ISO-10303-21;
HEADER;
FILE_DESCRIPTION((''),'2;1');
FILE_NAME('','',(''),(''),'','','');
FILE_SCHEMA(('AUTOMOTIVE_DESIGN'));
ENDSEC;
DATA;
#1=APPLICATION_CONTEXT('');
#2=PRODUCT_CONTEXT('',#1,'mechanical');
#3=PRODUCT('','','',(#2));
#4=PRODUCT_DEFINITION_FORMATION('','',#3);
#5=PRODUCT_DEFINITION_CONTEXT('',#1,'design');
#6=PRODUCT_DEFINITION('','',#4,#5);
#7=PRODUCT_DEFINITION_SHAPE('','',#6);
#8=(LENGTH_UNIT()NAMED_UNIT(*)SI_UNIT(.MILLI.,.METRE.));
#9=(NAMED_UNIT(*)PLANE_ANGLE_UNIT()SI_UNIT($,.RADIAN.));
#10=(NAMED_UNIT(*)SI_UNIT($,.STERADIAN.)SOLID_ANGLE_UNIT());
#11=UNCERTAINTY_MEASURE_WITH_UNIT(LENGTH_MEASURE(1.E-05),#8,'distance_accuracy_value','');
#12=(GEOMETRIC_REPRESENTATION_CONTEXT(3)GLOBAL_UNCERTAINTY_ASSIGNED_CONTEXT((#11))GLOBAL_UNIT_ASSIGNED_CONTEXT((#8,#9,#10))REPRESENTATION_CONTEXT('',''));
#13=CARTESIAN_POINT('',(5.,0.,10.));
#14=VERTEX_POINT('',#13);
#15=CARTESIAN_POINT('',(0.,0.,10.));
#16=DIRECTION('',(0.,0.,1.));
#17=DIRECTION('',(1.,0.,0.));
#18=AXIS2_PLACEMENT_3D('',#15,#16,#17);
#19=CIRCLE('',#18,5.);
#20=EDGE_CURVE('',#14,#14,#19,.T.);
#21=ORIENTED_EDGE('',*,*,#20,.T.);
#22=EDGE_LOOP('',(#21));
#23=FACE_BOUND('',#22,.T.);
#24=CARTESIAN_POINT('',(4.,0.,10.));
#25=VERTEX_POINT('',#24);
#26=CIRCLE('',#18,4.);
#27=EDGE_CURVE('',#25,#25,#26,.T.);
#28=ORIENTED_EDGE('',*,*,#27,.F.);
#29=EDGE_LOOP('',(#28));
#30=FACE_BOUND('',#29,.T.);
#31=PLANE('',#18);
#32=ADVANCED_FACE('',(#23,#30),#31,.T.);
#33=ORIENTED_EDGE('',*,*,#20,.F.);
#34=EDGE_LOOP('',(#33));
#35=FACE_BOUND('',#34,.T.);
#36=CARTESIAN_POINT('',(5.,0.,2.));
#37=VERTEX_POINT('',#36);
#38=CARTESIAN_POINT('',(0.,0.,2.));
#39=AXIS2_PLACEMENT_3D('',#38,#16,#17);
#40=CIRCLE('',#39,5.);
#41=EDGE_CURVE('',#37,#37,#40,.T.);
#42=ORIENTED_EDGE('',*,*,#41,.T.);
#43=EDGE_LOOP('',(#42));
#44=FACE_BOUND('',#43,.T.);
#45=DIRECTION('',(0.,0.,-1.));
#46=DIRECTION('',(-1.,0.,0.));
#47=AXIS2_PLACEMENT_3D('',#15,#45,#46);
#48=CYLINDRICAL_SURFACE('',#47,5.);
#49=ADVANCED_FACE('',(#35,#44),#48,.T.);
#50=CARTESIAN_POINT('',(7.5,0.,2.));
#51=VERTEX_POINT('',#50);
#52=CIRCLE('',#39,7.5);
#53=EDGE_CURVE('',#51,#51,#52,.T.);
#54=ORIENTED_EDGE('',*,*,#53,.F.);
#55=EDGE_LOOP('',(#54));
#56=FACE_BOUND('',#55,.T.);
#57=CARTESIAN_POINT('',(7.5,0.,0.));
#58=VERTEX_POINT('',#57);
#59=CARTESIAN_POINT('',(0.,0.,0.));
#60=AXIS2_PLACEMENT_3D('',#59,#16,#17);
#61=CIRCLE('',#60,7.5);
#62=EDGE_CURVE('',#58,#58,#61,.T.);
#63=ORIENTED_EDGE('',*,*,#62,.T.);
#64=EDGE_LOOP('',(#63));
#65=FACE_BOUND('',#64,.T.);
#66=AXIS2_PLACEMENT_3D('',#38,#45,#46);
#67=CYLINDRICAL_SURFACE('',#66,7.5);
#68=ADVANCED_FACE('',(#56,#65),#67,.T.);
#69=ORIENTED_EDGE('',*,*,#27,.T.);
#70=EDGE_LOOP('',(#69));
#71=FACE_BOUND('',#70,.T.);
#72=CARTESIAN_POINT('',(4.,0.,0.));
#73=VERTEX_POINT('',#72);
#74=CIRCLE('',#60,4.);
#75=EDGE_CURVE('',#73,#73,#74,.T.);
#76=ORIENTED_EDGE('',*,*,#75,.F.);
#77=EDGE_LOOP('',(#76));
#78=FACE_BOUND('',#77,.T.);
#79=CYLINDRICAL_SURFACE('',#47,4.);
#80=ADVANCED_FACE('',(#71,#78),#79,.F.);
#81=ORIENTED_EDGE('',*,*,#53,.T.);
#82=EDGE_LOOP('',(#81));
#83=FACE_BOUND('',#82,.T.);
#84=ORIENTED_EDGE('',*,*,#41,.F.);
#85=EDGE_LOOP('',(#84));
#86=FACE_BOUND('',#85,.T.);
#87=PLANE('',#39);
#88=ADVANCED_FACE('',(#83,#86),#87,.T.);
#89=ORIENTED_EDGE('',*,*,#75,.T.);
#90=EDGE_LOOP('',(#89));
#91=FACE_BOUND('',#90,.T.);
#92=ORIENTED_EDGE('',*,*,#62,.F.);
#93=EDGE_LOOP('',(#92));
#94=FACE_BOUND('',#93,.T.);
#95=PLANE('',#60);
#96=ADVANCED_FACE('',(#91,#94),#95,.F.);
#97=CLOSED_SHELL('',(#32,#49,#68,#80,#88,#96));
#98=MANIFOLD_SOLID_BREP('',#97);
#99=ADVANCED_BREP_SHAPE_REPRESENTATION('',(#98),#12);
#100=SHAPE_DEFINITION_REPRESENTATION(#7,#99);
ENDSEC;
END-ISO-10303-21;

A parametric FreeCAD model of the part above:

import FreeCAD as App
import Part
import Sketcher

doc = App.newDocument("Part")
body = doc.addObject("PartDesign::Body", "Body")

sketch1 = body.newObject("Sketcher::SketchObject", "Sketch")
sketch1.AttachmentSupport = (doc.getObject("XY_Plane"), [""])
sketch1.MapMode = "FlatFace"
sketch1.addGeometry(Part.Circle(App.Vector(0, 0, 0), App.Vector(0, 0, 1), 5), False)
sketch1.addGeometry(Part.Circle(App.Vector(0, 0, 0), App.Vector(0, 0, 1), 4), False)
sketch1.addConstraint(Sketcher.Constraint("Coincident", 0, 3, -1, 1))
sketch1.addConstraint(Sketcher.Constraint("Coincident", 1, 3, -1, 1))
sketch1.addConstraint(Sketcher.Constraint("Diameter", 0, 10.0))
sketch1.addConstraint(Sketcher.Constraint("Diameter", 1, 8.0))
pad1 = body.newObject("PartDesign::Pad", "Pad")
pad1.Profile = sketch1
pad1.Length = 10

sketch2 = body.newObject("Sketcher::SketchObject", "Sketch001")
sketch2.AttachmentSupport = (doc.getObject("XY_Plane"), [""])
sketch2.MapMode = "FlatFace"
sketch2.addGeometry(Part.Circle(App.Vector(0, 0, 0), App.Vector(0, 0, 1), 8), False)
sketch2.addGeometry(Part.Circle(App.Vector(0, 0, 0), App.Vector(0, 0, 1), 5), False)
sketch2.addConstraint(Sketcher.Constraint("Coincident", 0, 3, -1, 1))
sketch2.addConstraint(Sketcher.Constraint("Coincident", 1, 3, -1, 1))
sketch2.addConstraint(Sketcher.Constraint("Diameter", 0, 15.0))
sketch2.addConstraint(Sketcher.Constraint("Diameter", 1, 10.0))
pad2 = body.newObject("PartDesign::Pad", "Pad001")
pad2.Profile = sketch2
pad2.Length = 2

doc.recompute()
